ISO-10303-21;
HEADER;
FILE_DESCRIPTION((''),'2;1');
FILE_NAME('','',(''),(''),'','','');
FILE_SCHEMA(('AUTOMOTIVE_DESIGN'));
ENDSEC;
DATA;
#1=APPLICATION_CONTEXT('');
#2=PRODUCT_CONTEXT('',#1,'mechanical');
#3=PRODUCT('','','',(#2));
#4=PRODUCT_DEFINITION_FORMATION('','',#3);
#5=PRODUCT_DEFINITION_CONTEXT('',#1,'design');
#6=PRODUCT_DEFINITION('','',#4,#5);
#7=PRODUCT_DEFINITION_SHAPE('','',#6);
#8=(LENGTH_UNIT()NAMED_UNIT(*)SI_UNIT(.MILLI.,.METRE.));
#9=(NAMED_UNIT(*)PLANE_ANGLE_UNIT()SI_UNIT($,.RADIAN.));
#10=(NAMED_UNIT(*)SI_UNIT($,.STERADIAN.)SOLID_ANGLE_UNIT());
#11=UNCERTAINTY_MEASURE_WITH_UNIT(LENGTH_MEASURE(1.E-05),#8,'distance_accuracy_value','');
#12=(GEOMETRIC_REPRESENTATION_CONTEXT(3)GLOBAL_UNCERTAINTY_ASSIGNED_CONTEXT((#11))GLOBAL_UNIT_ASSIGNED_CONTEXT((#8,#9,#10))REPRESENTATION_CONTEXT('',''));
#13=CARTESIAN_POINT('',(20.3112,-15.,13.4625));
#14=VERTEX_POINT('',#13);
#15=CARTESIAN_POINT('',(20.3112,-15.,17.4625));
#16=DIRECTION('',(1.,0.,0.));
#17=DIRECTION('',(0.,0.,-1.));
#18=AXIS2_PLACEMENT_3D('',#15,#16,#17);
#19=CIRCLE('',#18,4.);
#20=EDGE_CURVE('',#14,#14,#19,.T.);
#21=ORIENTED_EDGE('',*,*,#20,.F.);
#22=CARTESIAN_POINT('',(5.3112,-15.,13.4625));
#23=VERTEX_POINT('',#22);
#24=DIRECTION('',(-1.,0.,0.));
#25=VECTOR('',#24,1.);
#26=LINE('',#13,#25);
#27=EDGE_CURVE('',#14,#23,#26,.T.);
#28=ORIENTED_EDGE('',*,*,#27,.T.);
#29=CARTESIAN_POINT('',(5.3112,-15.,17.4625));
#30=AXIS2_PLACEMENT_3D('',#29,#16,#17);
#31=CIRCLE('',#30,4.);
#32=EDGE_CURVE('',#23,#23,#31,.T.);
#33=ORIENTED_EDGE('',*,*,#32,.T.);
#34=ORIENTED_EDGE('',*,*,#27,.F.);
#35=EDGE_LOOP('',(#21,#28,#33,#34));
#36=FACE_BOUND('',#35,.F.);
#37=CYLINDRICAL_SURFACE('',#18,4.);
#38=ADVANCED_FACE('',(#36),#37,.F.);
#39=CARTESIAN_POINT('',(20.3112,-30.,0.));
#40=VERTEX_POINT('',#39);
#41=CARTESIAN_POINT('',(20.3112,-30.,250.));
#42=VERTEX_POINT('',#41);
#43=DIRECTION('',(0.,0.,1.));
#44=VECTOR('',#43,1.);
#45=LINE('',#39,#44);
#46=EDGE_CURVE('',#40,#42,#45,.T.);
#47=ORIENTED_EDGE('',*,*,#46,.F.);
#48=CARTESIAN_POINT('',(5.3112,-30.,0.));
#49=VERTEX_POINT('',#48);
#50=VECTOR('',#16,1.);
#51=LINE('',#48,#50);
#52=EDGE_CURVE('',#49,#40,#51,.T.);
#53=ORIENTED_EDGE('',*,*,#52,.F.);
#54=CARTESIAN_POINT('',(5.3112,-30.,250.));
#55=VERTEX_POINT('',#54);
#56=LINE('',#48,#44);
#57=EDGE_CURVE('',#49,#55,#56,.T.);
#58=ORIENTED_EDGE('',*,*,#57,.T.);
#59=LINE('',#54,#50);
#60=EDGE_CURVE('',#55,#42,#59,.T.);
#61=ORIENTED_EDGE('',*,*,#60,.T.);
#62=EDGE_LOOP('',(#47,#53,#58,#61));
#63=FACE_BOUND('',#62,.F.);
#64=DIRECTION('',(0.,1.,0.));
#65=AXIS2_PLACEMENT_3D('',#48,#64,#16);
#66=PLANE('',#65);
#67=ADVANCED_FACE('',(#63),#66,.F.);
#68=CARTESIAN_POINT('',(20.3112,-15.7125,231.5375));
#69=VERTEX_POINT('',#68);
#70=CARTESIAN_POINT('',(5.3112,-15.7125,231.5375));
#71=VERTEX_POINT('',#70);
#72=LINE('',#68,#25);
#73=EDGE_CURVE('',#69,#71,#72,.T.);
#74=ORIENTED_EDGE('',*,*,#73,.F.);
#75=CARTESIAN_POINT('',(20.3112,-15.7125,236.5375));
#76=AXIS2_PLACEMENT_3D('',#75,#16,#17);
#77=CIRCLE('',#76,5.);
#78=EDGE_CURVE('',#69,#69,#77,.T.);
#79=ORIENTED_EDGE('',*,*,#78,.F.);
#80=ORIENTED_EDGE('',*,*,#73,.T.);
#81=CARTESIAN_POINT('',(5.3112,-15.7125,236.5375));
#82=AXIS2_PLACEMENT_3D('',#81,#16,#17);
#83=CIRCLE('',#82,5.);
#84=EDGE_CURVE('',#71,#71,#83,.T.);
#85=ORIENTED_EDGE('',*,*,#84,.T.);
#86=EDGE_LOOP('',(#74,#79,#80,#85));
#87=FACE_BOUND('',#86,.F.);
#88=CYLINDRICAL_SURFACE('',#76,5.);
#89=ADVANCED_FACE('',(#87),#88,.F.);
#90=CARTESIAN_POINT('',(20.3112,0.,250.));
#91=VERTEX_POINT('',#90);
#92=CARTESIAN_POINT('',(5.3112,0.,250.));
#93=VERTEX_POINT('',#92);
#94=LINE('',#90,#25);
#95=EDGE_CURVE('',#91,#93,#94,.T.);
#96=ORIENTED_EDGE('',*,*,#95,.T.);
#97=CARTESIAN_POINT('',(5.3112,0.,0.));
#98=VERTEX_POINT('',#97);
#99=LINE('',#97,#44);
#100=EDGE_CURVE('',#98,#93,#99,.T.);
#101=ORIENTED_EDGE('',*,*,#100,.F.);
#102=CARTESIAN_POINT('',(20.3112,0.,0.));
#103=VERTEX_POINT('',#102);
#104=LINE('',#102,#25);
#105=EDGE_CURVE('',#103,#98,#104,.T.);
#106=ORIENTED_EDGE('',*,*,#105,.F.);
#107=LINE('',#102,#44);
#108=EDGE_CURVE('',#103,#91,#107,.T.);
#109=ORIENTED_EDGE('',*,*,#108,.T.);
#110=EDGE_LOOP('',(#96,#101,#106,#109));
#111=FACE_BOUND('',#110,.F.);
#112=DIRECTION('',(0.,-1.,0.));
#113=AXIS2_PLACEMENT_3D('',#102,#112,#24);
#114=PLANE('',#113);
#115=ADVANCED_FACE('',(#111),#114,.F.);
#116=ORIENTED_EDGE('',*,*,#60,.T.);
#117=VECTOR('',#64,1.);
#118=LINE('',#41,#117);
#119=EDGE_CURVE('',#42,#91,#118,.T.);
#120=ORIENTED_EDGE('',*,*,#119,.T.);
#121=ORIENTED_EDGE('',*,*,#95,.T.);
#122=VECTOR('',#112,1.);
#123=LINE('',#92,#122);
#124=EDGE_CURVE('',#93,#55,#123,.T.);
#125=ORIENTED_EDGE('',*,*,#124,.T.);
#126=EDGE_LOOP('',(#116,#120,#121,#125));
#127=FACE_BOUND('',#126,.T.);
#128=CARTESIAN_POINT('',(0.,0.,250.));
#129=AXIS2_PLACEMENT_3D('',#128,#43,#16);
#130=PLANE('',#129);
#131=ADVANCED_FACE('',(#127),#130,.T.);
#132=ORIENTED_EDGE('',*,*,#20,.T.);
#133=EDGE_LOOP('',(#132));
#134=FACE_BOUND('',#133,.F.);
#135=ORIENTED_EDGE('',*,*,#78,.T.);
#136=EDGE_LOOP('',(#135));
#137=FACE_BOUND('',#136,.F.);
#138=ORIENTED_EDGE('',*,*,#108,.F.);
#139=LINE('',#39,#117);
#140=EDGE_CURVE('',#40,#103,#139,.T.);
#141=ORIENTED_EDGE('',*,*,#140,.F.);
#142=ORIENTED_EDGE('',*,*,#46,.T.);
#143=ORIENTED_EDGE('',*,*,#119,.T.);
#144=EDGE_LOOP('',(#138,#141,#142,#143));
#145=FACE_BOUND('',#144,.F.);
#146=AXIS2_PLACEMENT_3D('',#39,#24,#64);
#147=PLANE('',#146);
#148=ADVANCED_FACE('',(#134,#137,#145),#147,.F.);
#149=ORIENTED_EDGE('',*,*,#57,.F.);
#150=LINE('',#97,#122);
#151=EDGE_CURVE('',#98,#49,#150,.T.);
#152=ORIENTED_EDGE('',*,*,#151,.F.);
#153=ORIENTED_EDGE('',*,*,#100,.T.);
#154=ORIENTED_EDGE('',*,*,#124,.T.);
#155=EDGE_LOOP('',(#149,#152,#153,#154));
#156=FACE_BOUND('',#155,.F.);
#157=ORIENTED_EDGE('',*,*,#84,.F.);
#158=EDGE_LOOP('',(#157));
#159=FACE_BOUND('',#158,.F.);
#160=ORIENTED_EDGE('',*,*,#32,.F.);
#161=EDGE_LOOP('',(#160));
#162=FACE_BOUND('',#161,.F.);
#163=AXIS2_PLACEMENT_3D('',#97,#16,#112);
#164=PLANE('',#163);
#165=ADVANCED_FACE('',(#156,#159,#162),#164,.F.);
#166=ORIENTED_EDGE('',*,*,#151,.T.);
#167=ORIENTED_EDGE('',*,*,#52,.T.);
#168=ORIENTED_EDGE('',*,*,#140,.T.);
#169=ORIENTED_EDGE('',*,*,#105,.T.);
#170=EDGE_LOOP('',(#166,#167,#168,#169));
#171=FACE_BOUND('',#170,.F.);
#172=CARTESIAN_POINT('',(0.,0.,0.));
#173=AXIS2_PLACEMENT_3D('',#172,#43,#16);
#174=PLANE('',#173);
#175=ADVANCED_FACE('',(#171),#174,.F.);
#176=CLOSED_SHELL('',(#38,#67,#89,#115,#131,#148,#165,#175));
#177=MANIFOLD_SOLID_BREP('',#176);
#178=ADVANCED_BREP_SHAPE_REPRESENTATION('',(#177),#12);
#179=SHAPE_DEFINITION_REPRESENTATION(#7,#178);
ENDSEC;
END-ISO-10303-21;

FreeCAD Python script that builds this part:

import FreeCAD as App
import Part
import Sketcher


def add_polygon(sketch, points):
    """Adds a closed chain of lines whose ends are joined by coincident constraints."""
    first, n = sketch.GeometryCount, len(points)
    for a, b in zip(points, points[1:] + points[:1]):
        sketch.addGeometry(Part.LineSegment(App.Vector(*a, 0), App.Vector(*b, 0)), False)
    for i in range(n):
        sketch.addConstraint(Sketcher.Constraint("Coincident", first + i, 2, first + (i + 1) % n, 1))

doc = App.newDocument("Part")
body = doc.addObject("PartDesign::Body", "Body")

# Sketch on XY plane
sketch1 = body.newObject("Sketcher::SketchObject", "Sketch")
sketch1.AttachmentSupport = (doc.getObject("XY_Plane"), [""])
sketch1.MapMode = "FlatFace"
add_polygon(sketch1, [(20, -30), (20, 0), (5, 0), (5, -30)])  # lines 0-3
sketch1.addConstraint([
    Sketcher.Constraint("Vertical", 0),
    Sketcher.Constraint("Horizontal", 1),
    Sketcher.Constraint("Vertical", 2),
    Sketcher.Constraint("Horizontal", 3),
    Sketcher.Constraint("PointOnObject", 0, 2, -1),
    Sketcher.Constraint("DistanceX", 1, 2, 1, 1, 15.0),
    Sketcher.Constraint("DistanceY", 0, 1, 0, 2, 30.0),
    Sketcher.Constraint("DistanceX", -1, 1, 0, 2, 20.3112),
])
pad1 = body.newObject("PartDesign::Pad", "Pad")
pad1.Profile = sketch1
pad1.Length = 250

# Sketch on YZ plane
sketch2 = body.newObject("Sketcher::SketchObject", "Sketch001")
sketch2.AttachmentSupport = (doc.getObject("YZ_Plane"), [""])
sketch2.MapMode = "FlatFace"
sketch2.AttachmentOffset = App.Placement(App.Vector(0, 0, 20.3112), App.Rotation())
sketch2.addGeometry(Part.Circle(App.Vector(-15, 17.5, 0), App.Vector(0, 0, 1), 4), False)
sketch2.addConstraint([
    Sketcher.Constraint("Diameter", 0, 8.0),
    Sketcher.Constraint("DistanceX", 0, 3, -1, 1, 15.0),
    Sketcher.Constraint("DistanceY", -1, 1, 0, 3, 17.4625),
])
pocket1 = body.newObject("PartDesign::Pocket", "Pocket")
pocket1.Profile = sketch2
pocket1.Type = "ThroughAll"

# Sketch on YZ plane
sketch3 = body.newObject("Sketcher::SketchObject", "Sketch002")
sketch3.AttachmentSupport = (doc.getObject("YZ_Plane"), [""])
sketch3.MapMode = "FlatFace"
sketch3.AttachmentOffset = App.Placement(App.Vector(0, 0, 20.3112), App.Rotation())
sketch3.addGeometry(Part.Circle(App.Vector(-16, 237, 0), App.Vector(0, 0, 1), 5), False)
sketch3.addConstraint([
    Sketcher.Constraint("Diameter", 0, 10.0),
    Sketcher.Constraint("DistanceX", 0, 3, -1, 1, 15.7125),
    Sketcher.Constraint("DistanceY", -1, 1, 0, 3, 236.5375),
])
pocket2 = body.newObject("PartDesign::Pocket", "Pocket001")
pocket2.Profile = sketch3
pocket2.Type = "ThroughAll"

doc.recompute()
